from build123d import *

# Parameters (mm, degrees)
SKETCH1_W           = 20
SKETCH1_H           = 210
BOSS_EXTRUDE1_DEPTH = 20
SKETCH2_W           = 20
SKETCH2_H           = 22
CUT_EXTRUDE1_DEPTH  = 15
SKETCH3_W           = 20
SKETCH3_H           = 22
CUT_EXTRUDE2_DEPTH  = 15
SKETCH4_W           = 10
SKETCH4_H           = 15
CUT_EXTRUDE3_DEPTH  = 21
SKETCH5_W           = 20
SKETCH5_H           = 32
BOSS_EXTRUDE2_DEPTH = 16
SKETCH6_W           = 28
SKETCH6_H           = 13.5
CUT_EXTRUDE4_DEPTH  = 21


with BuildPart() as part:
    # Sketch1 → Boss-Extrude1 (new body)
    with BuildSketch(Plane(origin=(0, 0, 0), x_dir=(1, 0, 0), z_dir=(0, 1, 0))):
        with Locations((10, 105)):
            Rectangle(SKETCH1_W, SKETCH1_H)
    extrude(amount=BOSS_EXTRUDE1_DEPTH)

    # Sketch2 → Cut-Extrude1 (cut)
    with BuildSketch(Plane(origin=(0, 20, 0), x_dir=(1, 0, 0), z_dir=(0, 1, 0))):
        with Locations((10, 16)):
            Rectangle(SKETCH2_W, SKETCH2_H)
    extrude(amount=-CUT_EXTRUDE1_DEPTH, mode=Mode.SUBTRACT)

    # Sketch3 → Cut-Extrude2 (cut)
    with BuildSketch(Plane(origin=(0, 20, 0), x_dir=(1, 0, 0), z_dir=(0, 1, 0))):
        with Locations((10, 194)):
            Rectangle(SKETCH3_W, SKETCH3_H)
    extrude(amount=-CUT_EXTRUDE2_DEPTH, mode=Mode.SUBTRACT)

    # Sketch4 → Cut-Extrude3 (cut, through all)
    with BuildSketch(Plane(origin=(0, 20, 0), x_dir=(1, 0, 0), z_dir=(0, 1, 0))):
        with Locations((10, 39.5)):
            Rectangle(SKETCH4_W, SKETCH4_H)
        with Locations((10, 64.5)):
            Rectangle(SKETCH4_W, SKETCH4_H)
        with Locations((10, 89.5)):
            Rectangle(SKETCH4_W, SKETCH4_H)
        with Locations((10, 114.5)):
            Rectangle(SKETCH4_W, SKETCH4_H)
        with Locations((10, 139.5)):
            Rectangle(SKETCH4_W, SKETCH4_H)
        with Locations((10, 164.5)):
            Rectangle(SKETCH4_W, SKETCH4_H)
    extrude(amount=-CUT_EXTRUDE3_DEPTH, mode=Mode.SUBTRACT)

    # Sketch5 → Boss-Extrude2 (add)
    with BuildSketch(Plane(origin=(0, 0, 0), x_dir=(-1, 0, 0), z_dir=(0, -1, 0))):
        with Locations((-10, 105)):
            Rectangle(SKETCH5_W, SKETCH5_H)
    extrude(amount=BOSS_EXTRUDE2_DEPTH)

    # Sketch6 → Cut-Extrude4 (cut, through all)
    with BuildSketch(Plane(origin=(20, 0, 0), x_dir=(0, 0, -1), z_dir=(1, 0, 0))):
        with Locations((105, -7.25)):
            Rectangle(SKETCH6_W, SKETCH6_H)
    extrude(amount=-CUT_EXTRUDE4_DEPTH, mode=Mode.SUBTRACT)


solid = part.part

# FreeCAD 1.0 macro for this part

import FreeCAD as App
import Part
import Sketcher

V = App.Vector
Q = App.Units.Quantity

doc = App.newDocument("Part")
params = doc.addObject("Spreadsheet::Sheet", "Params")
for row, (alias, value) in enumerate([
    ("sketch1_width", "20 mm"),
    ("sketch1_height", "210 mm"),
    ("pad1_length", "20 mm"),
    ("sketch2_width", "20 mm"),
    ("sketch2_height", "22 mm"),
    ("pocket1_length", "15 mm"),
    ("sketch3_width", "20 mm"),
    ("sketch3_height", "22 mm"),
    ("pocket2_length", "15 mm"),
    ("sketch4_width", "10 mm"),
    ("sketch4_height", "15 mm"),
    ("sketch5_width", "20 mm"),
    ("sketch5_height", "32 mm"),
    ("pad2_length", "16 mm"),
    ("sketch6_height", "28 mm"),
    ("sketch6_width", "13.5 mm"),
], start=1):
    params.set(f"A{row}", alias)
    params.set(f"B{row}", "=" + value)
    params.setAlias(f"B{row}", alias)

body = doc.addObject("PartDesign::Body", "Body")

sketch1 = doc.addObject("Sketcher::SketchObject", "Sketch")
body.addObject(sketch1)
sketch1.AttachmentSupport = (doc.XZ_Plane, [""])
sketch1.MapMode = "FlatFace"
sketch1.addGeometry(Part.LineSegment(V(0, -210, 0), V(0, 0, 0)), False)
sketch1.addGeometry(Part.LineSegment(V(0, 0, 0), V(20, 0, 0)), False)
sketch1.addGeometry(Part.LineSegment(V(20, 0, 0), V(20, -210, 0)), False)
sketch1.addGeometry(Part.LineSegment(V(20, -210, 0), V(0, -210, 0)), False)
sketch1.addConstraint(Sketcher.Constraint("Coincident", 0, 2, 1, 1))
sketch1.addConstraint(Sketcher.Constraint("Coincident", 1, 2, 2, 1))
sketch1.addConstraint(Sketcher.Constraint("Coincident", 2, 2, 3, 1))
sketch1.addConstraint(Sketcher.Constraint("Coincident", 3, 2, 0, 1))
sketch1.addConstraint(Sketcher.Constraint("Vertical", 0))
sketch1.addConstraint(Sketcher.Constraint("Horizontal", 1))
sketch1.addConstraint(Sketcher.Constraint("Vertical", 2))
sketch1.addConstraint(Sketcher.Constraint("Horizontal", 3))
sketch1.addConstraint(Sketcher.Constraint("Coincident", 0, 2, -1, 1))
sketch1.addConstraint(Sketcher.Constraint("DistanceX", 1, 1, 1, 2, Q("20 mm")))
sketch1.addConstraint(Sketcher.Constraint("DistanceY", 0, 1, 0, 2, Q("210 mm")))
sketch1.setExpression("Constraints[9]", "Params.sketch1_width")
sketch1.setExpression("Constraints[10]", "Params.sketch1_height")
pad1 = doc.addObject("PartDesign::Pad", "Pad")
body.addObject(pad1)
pad1.Profile = sketch1
pad1.setExpression("Length", "Params.pad1_length")
pad1.Reversed = True

sketch2 = doc.addObject("Sketcher::SketchObject", "Sketch001")
body.addObject(sketch2)
sketch2.AttachmentSupport = (doc.XZ_Plane, [""])
sketch2.MapMode = "FlatFace"
sketch2.AttachmentOffset = App.Placement(V(0, 0, -20), App.Rotation())
sketch2.addGeometry(Part.LineSegment(V(0, -27, 0), V(0, -5, 0)), False)
sketch2.addGeometry(Part.LineSegment(V(0, -5, 0), V(20, -5, 0)), False)
sketch2.addGeometry(Part.LineSegment(V(20, -5, 0), V(20, -27, 0)), False)
sketch2.addGeometry(Part.LineSegment(V(20, -27, 0), V(0, -27, 0)), False)
sketch2.addConstraint(Sketcher.Constraint("Coincident", 0, 2, 1, 1))
sketch2.addConstraint(Sketcher.Constraint("Coincident", 1, 2, 2, 1))
sketch2.addConstraint(Sketcher.Constraint("Coincident", 2, 2, 3, 1))
sketch2.addConstraint(Sketcher.Constraint("Coincident", 3, 2, 0, 1))
sketch2.addConstraint(Sketcher.Constraint("Vertical", 0))
sketch2.addConstraint(Sketcher.Constraint("Horizontal", 1))
sketch2.addConstraint(Sketcher.Constraint("Vertical", 2))
sketch2.addConstraint(Sketcher.Constraint("Horizontal", 3))
sketch2.addConstraint(Sketcher.Constraint("PointOnObject", 0, 2, -2))
sketch2.addConstraint(Sketcher.Constraint("DistanceX", 1, 1, 1, 2, Q("20 mm")))
sketch2.addConstraint(Sketcher.Constraint("DistanceY", 0, 1, 0, 2, Q("22 mm")))
sketch2.addConstraint(Sketcher.Constraint("DistanceY", 0, 2, -1, 1, Q("5 mm")))
sketch2.setExpression("Constraints[9]", "Params.sketch2_width")
sketch2.setExpression("Constraints[10]", "Params.sketch2_height")
pocket1 = doc.addObject("PartDesign::Pocket", "Pocket")
body.addObject(pocket1)
pocket1.Profile = sketch2
pocket1.setExpression("Length", "Params.pocket1_length")
pocket1.Reversed = True

sketch3 = doc.addObject("Sketcher::SketchObject", "Sketch002")
body.addObject(sketch3)
sketch3.AttachmentSupport = (doc.XZ_Plane, [""])
sketch3.MapMode = "FlatFace"
sketch3.AttachmentOffset = App.Placement(V(0, 0, -20), App.Rotation())
sketch3.addGeometry(Part.LineSegment(V(0, -205, 0), V(0, -183, 0)), False)
sketch3.addGeometry(Part.LineSegment(V(0, -183, 0), V(20, -183, 0)), False)
sketch3.addGeometry(Part.LineSegment(V(20, -183, 0), V(20, -205, 0)), False)
sketch3.addGeometry(Part.LineSegment(V(20, -205, 0), V(0, -205, 0)), False)
sketch3.addConstraint(Sketcher.Constraint("Coincident", 0, 2, 1, 1))
sketch3.addConstraint(Sketcher.Constraint("Coincident", 1, 2, 2, 1))
sketch3.addConstraint(Sketcher.Constraint("Coincident", 2, 2, 3, 1))
sketch3.addConstraint(Sketcher.Constraint("Coincident", 3, 2, 0, 1))
sketch3.addConstraint(Sketcher.Constraint("Vertical", 0))
sketch3.addConstraint(Sketcher.Constraint("Horizontal", 1))
sketch3.addConstraint(Sketcher.Constraint("Vertical", 2))
sketch3.addConstraint(Sketcher.Constraint("Horizontal", 3))
sketch3.addConstraint(Sketcher.Constraint("PointOnObject", 0, 2, -2))
sketch3.addConstraint(Sketcher.Constraint("DistanceX", 1, 1, 1, 2, Q("20 mm")))
sketch3.addConstraint(Sketcher.Constraint("DistanceY", 0, 1, 0, 2, Q("22 mm")))
sketch3.addConstraint(Sketcher.Constraint("DistanceY", 0, 2, -1, 1, Q("183 mm")))
sketch3.setExpression("Constraints[9]", "Params.sketch3_width")
sketch3.setExpression("Constraints[10]", "Params.sketch3_height")
pocket2 = doc.addObject("PartDesign::Pocket", "Pocket001")
body.addObject(pocket2)
pocket2.Profile = sketch3
pocket2.setExpression("Length", "Params.pocket2_length")
pocket2.Reversed = True

sketch4 = doc.addObject("Sketcher::SketchObject", "Sketch003")
body.addObject(sketch4)
sketch4.AttachmentSupport = (doc.XZ_Plane, [""])
sketch4.MapMode = "FlatFace"
sketch4.AttachmentOffset = App.Placement(V(0, 0, -20), App.Rotation())
sketch4.addGeometry(Part.LineSegment(V(5, -47, 0), V(5, -32, 0)), False)
sketch4.addGeometry(Part.LineSegment(V(5, -32, 0), V(15, -32, 0)), False)
sketch4.addGeometry(Part.LineSegment(V(15, -32, 0), V(15, -47, 0)), False)
sketch4.addGeometry(Part.LineSegment(V(15, -47, 0), V(5, -47, 0)), False)
sketch4.addGeometry(Part.LineSegment(V(5, -72, 0), V(5, -57, 0)), False)
sketch4.addGeometry(Part.LineSegment(V(5, -57, 0), V(15, -57, 0)), False)
sketch4.addGeometry(Part.LineSegment(V(15, -57, 0), V(15, -72, 0)), False)
sketch4.addGeometry(Part.LineSegment(V(15, -72, 0), V(5, -72, 0)), False)
sketch4.addGeometry(Part.LineSegment(V(5, -97, 0), V(5, -82, 0)), False)
sketch4.addGeometry(Part.LineSegment(V(5, -82, 0), V(15, -82, 0)), False)
sketch4.addGeometry(Part.LineSegment(V(15, -82, 0), V(15, -97, 0)), False)
sketch4.addGeometry(Part.LineSegment(V(15, -97, 0), V(5, -97, 0)), False)
sketch4.addGeometry(Part.LineSegment(V(5, -122, 0), V(5, -107, 0)), False)
sketch4.addGeometry(Part.LineSegment(V(5, -107, 0), V(15, -107, 0)), False)
sketch4.addGeometry(Part.LineSegment(V(15, -107, 0), V(15, -122, 0)), False)
sketch4.addGeometry(Part.LineSegment(V(15, -122, 0), V(5, -122, 0)), False)
sketch4.addGeometry(Part.LineSegment(V(5, -147, 0), V(5, -132, 0)), False)
sketch4.addGeometry(Part.LineSegment(V(5, -132, 0), V(15, -132, 0)), False)
sketch4.addGeometry(Part.LineSegment(V(15, -132, 0), V(15, -147, 0)), False)
sketch4.addGeometry(Part.LineSegment(V(15, -147, 0), V(5, -147, 0)), False)
sketch4.addGeometry(Part.LineSegment(V(5, -172, 0), V(5, -157, 0)), False)
sketch4.addGeometry(Part.LineSegment(V(5, -157, 0), V(15, -157, 0)), False)
sketch4.addGeometry(Part.LineSegment(V(15, -157, 0), V(15, -172, 0)), False)
sketch4.addGeometry(Part.LineSegment(V(15, -172, 0), V(5, -172, 0)), False)
sketch4.addConstraint(Sketcher.Constraint("Coincident", 0, 2, 1, 1))
sketch4.addConstraint(Sketcher.Constraint("Coincident", 1, 2, 2, 1))
sketch4.addConstraint(Sketcher.Constraint("Coincident", 2, 2, 3, 1))
sketch4.addConstraint(Sketcher.Constraint("Coincident", 3, 2, 0, 1))
sketch4.addConstraint(Sketcher.Constraint("Coincident", 4, 2, 5, 1))
sketch4.addConstraint(Sketcher.Constraint("Coincident", 5, 2, 6, 1))
sketch4.addConstraint(Sketcher.Constraint("Coincident", 6, 2, 7, 1))
sketch4.addConstraint(Sketcher.Constraint("Coincident", 7, 2, 4, 1))
sketch4.addConstraint(Sketcher.Constraint("Coincident", 8, 2, 9, 1))
sketch4.addConstraint(Sketcher.Constraint("Coincident", 9, 2, 10, 1))
sketch4.addConstraint(Sketcher.Constraint("Coincident", 10, 2, 11, 1))
sketch4.addConstraint(Sketcher.Constraint("Coincident", 11, 2, 8, 1))
sketch4.addConstraint(Sketcher.Constraint("Coincident", 12, 2, 13, 1))
sketch4.addConstraint(Sketcher.Constraint("Coincident", 13, 2, 14, 1))
sketch4.addConstraint(Sketcher.Constraint("Coincident", 14, 2, 15, 1))
sketch4.addConstraint(Sketcher.Constraint("Coincident", 15, 2, 12, 1))
sketch4.addConstraint(Sketcher.Constraint("Coincident", 16, 2, 17, 1))
sketch4.addConstraint(Sketcher.Constraint("Coincident", 17, 2, 18, 1))
sketch4.addConstraint(Sketcher.Constraint("Coincident", 18, 2, 19, 1))
sketch4.addConstraint(Sketcher.Constraint("Coincident", 19, 2, 16, 1))
sketch4.addConstraint(Sketcher.Constraint("Coincident", 20, 2, 21, 1))
sketch4.addConstraint(Sketcher.Constraint("Coincident", 21, 2, 22, 1))
sketch4.addConstraint(Sketcher.Constraint("Coincident", 22, 2, 23, 1))
sketch4.addConstraint(Sketcher.Constraint("Coincident", 23, 2, 20, 1))
sketch4.addConstraint(Sketcher.Constraint("Vertical", 0))
sketch4.addConstraint(Sketcher.Constraint("Horizontal", 1))
sketch4.addConstraint(Sketcher.Constraint("Vertical", 2))
sketch4.addConstraint(Sketcher.Constraint("Horizontal", 3))
sketch4.addConstraint(Sketcher.Constraint("Vertical", 4))
sketch4.addConstraint(Sketcher.Constraint("Horizontal", 5))
sketch4.addConstraint(Sketcher.Constraint("Vertical", 6))
sketch4.addConstraint(Sketcher.Constraint("Horizontal", 7))
sketch4.addConstraint(Sketcher.Constraint("Vertical", 8))
sketch4.addConstraint(Sketcher.Constraint("Horizontal", 9))
sketch4.addConstraint(Sketcher.Constraint("Vertical", 10))
sketch4.addConstraint(Sketcher.Constraint("Horizontal", 11))
sketch4.addConstraint(Sketcher.Constraint("Vertical", 12))
sketch4.addConstraint(Sketcher.Constraint("Horizontal", 13))
sketch4.addConstraint(Sketcher.Constraint("Vertical", 14))
sketch4.addConstraint(Sketcher.Constraint("Horizontal", 15))
sketch4.addConstraint(Sketcher.Constraint("Vertical", 16))
sketch4.addConstraint(Sketcher.Constraint("Horizontal", 17))
sketch4.addConstraint(Sketcher.Constraint("Vertical", 18))
sketch4.addConstraint(Sketcher.Constraint("Horizontal", 19))
sketch4.addConstraint(Sketcher.Constraint("Vertical", 20))
sketch4.addConstraint(Sketcher.Constraint("Horizontal", 21))
sketch4.addConstraint(Sketcher.Constraint("Vertical", 22))
sketch4.addConstraint(Sketcher.Constraint("Horizontal", 23))
sketch4.addConstraint(Sketcher.Constraint("Vertical", 3, 2, 4, 2))
sketch4.addConstraint(Sketcher.Constraint("Vertical", 2, 2, 5, 2))
sketch4.addConstraint(Sketcher.Constraint("Vertical", 7, 2, 8, 2))
sketch4.addConstraint(Sketcher.Constraint("Vertical", 6, 2, 9, 2))
sketch4.addConstraint(Sketcher.Constraint("Vertical", 11, 2, 12, 2))
sketch4.addConstraint(Sketcher.Constraint("Vertical", 10, 2, 13, 2))
sketch4.addConstraint(Sketcher.Constraint("Vertical", 15, 2, 16, 2))
sketch4.addConstraint(Sketcher.Constraint("Vertical", 14, 2, 17, 2))
sketch4.addConstraint(Sketcher.Constraint("Vertical", 19, 2, 20, 2))
sketch4.addConstraint(Sketcher.Constraint("Vertical", 18, 2, 21, 2))
sketch4.addConstraint(Sketcher.Constraint("Equal", 2, 4))
sketch4.addConstraint(Sketcher.Constraint("Equal", 6, 8))
sketch4.addConstraint(Sketcher.Constraint("Equal", 10, 12))
sketch4.addConstraint(Sketcher.Constraint("Equal", 14, 16))
sketch4.addConstraint(Sketcher.Constraint("Equal", 18, 20))
sketch4.addConstraint(Sketcher.Constraint("DistanceX", 1, 1, 1, 2, Q("10 mm")))
sketch4.addConstraint(Sketcher.Constraint("DistanceY", 0, 1, 0, 2, Q("15 mm")))
sketch4.addConstraint(Sketcher.Constraint("DistanceX", -1, 1, 0, 2, Q("5 mm")))
sketch4.addConstraint(Sketcher.Constraint("DistanceY", 0, 2, -1, 1, Q("32 mm")))
sketch4.addConstraint(Sketcher.Constraint("DistanceY", 4, 2, -1, 1, Q("57 mm")))
sketch4.addConstraint(Sketcher.Constraint("DistanceY", 8, 2, -1, 1, Q("82 mm")))
sketch4.addConstraint(Sketcher.Constraint("DistanceY", 12, 2, -1, 1, Q("107 mm")))
sketch4.addConstraint(Sketcher.Constraint("DistanceY", 16, 2, -1, 1, Q("132 mm")))
sketch4.addConstraint(Sketcher.Constraint("DistanceY", 20, 2, -1, 1, Q("157 mm")))
sketch4.setExpression("Constraints[63]", "Params.sketch4_width")
sketch4.setExpression("Constraints[64]", "Params.sketch4_height")
pocket3 = doc.addObject("PartDesign::Pocket", "Pocket002")
body.addObject(pocket3)
pocket3.Profile = sketch4
pocket3.Type = "ThroughAll"
pocket3.Reversed = True

sketch5 = doc.addObject("Sketcher::SketchObject", "Sketch004")
body.addObject(sketch5)
sketch5.AttachmentSupport = (doc.XZ_Plane, [""])
sketch5.MapMode = "FlatFace"
sketch5.addGeometry(Part.LineSegment(V(20, -121, 0), V(20, -89, 0)), False)
sketch5.addGeometry(Part.LineSegment(V(20, -89, 0), V(0, -89, 0)), False)
sketch5.addGeometry(Part.LineSegment(V(0, -89, 0), V(0, -121, 0)), False)
sketch5.addGeometry(Part.LineSegment(V(0, -121, 0), V(20, -121, 0)), False)
sketch5.addConstraint(Sketcher.Constraint("Coincident", 0, 2, 1, 1))
sketch5.addConstraint(Sketcher.Constraint("Coincident", 1, 2, 2, 1))
sketch5.addConstraint(Sketcher.Constraint("Coincident", 2, 2, 3, 1))
sketch5.addConstraint(Sketcher.Constraint("Coincident", 3, 2, 0, 1))
sketch5.addConstraint(Sketcher.Constraint("Vertical", 0))
sketch5.addConstraint(Sketcher.Constraint("Horizontal", 1))
sketch5.addConstraint(Sketcher.Constraint("Vertical", 2))
sketch5.addConstraint(Sketcher.Constraint("Horizontal", 3))
sketch5.addConstraint(Sketcher.Constraint("PointOnObject", 1, 2, -2))
sketch5.addConstraint(Sketcher.Constraint("DistanceX", 1, 2, 1, 1, Q("20 mm")))
sketch5.addConstraint(Sketcher.Constraint("DistanceY", 0, 1, 0, 2, Q("32 mm")))
sketch5.addConstraint(Sketcher.Constraint("DistanceY", 0, 2, -1, 1, Q("89 mm")))
sketch5.setExpression("Constraints[9]", "Params.sketch5_width")
sketch5.setExpression("Constraints[10]", "Params.sketch5_height")
pad2 = doc.addObject("PartDesign::Pad", "Pad001")
body.addObject(pad2)
pad2.Profile = sketch5
pad2.setExpression("Length", "Params.pad2_length")

sketch6 = doc.addObject("Sketcher::SketchObject", "Sketch005")
body.addObject(sketch6)
sketch6.AttachmentSupport = (doc.YZ_Plane, [""])
sketch6.MapMode = "FlatFace"
sketch6.AttachmentOffset = App.Placement(V(0, 0, 20), App.Rotation())
sketch6.addGeometry(Part.LineSegment(V(0, -91, 0), V(-14, -91, 0)), False)
sketch6.addGeometry(Part.LineSegment(V(-14, -91, 0), V(-14, -119, 0)), False)
sketch6.addGeometry(Part.LineSegment(V(-14, -119, 0), V(0, -119, 0)), False)
sketch6.addGeometry(Part.LineSegment(V(0, -119, 0), V(0, -91, 0)), False)
sketch6.addConstraint(Sketcher.Constraint("Coincident", 0, 2, 1, 1))
sketch6.addConstraint(Sketcher.Constraint("Coincident", 1, 2, 2, 1))
sketch6.addConstraint(Sketcher.Constraint("Coincident", 2, 2, 3, 1))
sketch6.addConstraint(Sketcher.Constraint("Coincident", 3, 2, 0, 1))
sketch6.addConstraint(Sketcher.Constraint("Horizontal", 0))
sketch6.addConstraint(Sketcher.Constraint("Vertical", 1))
sketch6.addConstraint(Sketcher.Constraint("Horizontal", 2))
sketch6.addConstraint(Sketcher.Constraint("Vertical", 3))
sketch6.addConstraint(Sketcher.Constraint("DistanceY", 1, 2, 1, 1, Q("28 mm")))
sketch6.addConstraint(Sketcher.Constraint("DistanceX", 0, 2, 0, 1, Q("13.5 mm")))
sketch6.addConstraint(Sketcher.Constraint("DistanceX", 0, 2, -1, 1, Q("14 mm")))
sketch6.addConstraint(Sketcher.Constraint("DistanceY", 0, 2, -1, 1, Q("91 mm")))
sketch6.setExpression("Constraints[8]", "Params.sketch6_height")
sketch6.setExpression("Constraints[9]", "Params.sketch6_width")
pocket4 = doc.addObject("PartDesign::Pocket", "Pocket003")
body.addObject(pocket4)
pocket4.Profile = sketch6
pocket4.Type = "ThroughAll"

doc.recompute()
